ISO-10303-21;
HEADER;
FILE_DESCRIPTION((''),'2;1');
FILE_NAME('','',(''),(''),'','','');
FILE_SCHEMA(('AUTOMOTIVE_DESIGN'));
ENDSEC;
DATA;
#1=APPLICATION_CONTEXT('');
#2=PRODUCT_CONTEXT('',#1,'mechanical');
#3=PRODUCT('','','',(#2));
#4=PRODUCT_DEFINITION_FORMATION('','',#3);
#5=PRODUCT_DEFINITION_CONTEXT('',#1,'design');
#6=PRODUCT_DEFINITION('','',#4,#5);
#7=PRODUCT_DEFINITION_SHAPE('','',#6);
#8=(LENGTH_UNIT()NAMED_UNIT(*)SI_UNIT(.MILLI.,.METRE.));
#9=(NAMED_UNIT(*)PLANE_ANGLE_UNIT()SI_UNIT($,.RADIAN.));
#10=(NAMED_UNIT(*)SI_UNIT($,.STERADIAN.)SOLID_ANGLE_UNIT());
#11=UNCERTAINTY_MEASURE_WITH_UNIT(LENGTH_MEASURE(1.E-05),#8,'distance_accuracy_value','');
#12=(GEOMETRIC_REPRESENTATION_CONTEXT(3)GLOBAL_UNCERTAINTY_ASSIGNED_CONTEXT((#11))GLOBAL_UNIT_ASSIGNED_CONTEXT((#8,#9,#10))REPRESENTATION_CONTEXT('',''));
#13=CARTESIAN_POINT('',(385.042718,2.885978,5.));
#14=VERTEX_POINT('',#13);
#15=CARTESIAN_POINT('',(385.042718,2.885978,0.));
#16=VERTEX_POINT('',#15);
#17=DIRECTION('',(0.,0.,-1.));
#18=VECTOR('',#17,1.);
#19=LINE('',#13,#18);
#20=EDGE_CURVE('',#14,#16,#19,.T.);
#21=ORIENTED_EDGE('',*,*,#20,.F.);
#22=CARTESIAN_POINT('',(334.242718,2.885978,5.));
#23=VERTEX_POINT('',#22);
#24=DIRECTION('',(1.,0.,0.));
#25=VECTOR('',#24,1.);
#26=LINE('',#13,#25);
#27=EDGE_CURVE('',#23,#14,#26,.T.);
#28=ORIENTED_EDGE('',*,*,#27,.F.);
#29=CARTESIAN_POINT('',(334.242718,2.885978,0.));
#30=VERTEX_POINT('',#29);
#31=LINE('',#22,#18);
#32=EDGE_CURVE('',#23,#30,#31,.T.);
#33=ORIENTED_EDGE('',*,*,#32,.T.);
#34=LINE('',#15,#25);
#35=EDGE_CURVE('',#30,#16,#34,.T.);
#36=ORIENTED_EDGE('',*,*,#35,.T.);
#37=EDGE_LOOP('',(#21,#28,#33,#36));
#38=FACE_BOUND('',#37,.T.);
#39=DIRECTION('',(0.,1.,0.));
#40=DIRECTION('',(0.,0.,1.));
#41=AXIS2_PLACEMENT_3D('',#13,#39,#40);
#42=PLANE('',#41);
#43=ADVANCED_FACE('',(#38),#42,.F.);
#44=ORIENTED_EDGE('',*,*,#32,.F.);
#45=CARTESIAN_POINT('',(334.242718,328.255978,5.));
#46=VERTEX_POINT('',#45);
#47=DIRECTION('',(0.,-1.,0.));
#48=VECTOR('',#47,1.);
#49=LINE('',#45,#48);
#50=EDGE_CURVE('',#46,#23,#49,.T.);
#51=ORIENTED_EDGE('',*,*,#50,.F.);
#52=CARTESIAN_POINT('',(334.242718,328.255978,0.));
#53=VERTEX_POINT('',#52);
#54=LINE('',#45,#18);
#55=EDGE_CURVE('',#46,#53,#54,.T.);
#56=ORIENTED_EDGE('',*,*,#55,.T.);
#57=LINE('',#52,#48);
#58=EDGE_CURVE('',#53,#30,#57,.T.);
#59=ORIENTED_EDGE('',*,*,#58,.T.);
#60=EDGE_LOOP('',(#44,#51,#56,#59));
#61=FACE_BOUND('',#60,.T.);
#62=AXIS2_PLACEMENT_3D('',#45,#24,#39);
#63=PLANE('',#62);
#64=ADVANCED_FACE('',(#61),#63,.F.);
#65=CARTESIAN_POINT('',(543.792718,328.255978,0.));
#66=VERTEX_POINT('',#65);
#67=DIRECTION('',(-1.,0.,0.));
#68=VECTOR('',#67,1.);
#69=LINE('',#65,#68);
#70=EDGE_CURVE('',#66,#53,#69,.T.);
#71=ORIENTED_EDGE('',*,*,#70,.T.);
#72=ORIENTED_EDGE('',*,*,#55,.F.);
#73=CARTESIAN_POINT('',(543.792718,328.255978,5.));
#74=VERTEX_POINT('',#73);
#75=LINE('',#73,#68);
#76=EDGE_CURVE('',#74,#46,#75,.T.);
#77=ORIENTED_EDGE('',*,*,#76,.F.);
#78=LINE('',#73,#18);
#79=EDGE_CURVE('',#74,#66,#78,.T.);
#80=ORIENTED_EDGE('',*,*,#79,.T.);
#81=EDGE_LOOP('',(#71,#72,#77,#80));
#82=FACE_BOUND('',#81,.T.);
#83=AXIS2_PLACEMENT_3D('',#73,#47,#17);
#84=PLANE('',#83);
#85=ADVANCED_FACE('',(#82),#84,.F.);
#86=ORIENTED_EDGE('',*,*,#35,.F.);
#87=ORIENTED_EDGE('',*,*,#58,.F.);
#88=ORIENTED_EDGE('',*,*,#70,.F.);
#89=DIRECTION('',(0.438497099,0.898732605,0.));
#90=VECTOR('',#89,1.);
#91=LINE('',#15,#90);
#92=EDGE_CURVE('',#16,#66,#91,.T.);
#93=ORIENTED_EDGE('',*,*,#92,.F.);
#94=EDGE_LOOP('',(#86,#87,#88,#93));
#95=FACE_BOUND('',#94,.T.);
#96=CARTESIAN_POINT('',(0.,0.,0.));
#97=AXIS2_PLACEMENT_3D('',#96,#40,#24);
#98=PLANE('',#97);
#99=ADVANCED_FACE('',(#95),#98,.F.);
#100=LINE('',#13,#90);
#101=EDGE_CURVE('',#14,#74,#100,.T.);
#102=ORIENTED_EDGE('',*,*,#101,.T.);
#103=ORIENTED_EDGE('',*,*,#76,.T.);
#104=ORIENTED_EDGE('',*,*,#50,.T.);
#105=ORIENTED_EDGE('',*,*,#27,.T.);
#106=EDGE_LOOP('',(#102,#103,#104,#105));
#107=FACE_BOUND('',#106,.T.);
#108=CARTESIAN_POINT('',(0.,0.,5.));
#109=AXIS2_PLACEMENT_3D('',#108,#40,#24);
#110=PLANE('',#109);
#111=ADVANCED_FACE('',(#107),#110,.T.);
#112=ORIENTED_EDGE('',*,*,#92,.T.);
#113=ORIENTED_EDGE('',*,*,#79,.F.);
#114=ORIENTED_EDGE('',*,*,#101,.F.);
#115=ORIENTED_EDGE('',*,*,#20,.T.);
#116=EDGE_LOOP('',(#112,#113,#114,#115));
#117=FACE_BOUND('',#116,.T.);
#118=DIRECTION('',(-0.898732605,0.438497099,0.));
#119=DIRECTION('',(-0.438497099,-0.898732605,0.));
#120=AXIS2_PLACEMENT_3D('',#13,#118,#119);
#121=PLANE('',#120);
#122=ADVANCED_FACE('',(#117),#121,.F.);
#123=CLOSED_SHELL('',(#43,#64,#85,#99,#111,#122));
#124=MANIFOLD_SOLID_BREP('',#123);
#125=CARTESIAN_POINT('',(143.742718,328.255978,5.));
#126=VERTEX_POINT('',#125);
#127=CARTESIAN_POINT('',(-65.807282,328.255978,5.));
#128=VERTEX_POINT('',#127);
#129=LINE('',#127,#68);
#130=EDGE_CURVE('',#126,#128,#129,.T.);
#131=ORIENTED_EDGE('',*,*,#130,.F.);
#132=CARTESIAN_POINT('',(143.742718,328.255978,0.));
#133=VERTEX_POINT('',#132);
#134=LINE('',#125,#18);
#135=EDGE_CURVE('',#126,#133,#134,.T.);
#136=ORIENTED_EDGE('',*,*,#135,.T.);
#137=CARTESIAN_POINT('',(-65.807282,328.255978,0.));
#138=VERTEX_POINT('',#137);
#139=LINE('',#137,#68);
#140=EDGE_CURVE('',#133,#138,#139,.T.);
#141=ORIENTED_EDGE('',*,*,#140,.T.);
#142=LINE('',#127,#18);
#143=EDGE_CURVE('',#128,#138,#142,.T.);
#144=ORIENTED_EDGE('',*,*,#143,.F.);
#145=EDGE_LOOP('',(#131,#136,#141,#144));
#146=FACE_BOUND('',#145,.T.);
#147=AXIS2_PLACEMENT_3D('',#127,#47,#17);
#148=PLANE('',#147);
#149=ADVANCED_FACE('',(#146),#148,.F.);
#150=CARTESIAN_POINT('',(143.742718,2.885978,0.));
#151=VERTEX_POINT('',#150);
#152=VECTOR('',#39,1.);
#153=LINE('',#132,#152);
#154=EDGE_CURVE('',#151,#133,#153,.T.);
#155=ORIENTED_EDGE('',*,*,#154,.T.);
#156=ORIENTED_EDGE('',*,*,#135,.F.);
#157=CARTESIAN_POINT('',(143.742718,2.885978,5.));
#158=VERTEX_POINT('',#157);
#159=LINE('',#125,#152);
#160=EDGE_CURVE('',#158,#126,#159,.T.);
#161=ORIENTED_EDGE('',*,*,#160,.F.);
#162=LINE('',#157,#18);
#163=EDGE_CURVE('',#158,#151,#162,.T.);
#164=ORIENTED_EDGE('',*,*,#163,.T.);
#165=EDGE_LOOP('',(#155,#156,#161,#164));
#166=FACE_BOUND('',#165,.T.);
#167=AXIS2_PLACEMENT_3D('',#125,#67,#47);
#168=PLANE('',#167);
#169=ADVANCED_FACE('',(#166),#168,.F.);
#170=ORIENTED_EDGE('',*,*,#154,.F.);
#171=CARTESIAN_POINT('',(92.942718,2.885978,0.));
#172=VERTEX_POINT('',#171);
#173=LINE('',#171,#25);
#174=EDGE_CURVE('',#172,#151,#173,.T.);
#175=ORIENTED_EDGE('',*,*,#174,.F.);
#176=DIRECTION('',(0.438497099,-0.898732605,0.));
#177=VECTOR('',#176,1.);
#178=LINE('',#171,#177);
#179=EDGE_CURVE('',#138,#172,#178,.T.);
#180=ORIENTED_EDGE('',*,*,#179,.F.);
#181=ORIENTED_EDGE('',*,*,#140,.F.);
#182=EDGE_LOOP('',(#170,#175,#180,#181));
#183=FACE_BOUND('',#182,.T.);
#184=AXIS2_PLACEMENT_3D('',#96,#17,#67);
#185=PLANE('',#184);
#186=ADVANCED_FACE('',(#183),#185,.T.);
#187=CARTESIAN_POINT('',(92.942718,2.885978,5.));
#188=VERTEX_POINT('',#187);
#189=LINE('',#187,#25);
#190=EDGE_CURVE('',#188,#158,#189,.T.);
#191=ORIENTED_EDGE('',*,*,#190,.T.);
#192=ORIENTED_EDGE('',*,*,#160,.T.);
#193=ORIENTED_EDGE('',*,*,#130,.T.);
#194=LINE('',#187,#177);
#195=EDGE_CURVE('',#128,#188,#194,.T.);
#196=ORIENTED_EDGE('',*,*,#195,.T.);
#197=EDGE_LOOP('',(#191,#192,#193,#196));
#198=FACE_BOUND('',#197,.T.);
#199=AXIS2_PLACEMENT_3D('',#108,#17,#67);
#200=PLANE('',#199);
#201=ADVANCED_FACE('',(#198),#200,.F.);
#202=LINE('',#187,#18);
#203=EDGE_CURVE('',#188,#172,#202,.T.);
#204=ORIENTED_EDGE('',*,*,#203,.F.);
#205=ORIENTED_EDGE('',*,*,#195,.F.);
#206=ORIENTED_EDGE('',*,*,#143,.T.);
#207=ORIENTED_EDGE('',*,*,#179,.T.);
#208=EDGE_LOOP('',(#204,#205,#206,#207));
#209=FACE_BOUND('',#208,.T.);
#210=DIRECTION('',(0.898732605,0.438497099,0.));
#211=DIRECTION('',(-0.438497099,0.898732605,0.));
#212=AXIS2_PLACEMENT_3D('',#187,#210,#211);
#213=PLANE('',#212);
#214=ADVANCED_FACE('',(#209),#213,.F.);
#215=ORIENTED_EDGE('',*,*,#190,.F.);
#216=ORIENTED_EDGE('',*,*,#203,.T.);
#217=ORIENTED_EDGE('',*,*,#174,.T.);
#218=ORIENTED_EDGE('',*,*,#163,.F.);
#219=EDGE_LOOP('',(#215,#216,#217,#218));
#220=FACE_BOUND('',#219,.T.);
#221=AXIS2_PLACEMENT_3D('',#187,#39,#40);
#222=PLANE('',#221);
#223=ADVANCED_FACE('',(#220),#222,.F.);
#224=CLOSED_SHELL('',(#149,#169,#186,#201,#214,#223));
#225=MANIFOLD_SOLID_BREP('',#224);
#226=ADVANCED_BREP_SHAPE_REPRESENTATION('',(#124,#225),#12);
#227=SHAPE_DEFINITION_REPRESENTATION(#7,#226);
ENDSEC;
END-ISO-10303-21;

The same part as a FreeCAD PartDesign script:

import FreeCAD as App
import Part
import Sketcher
Q = App.Units.Quantity

doc = App.newDocument("Part")
body = doc.addObject("PartDesign::Body", "Body")

# Sketch on XY plane
sketch1 = body.newObject("Sketcher::SketchObject", "Sketch")
sketch1.AttachmentSupport = (doc.getObject("XY_Plane"), [""])
sketch1.MapMode = "FlatFace"
sketch1.addGeometry(Part.LineSegment(App.Vector(93, 3, 0), App.Vector(144, 3, 0)), False)
sketch1.addGeometry(Part.LineSegment(App.Vector(144, 3, 0), App.Vector(144, 328, 0)), False)
sketch1.addGeometry(Part.LineSegment(App.Vector(144, 328, 0), App.Vector(-66, 328, 0)), False)
sketch1.addGeometry(Part.LineSegment(App.Vector(-66, 328, 0), App.Vector(93, 3, 0)), False)
sketch1.addConstraint(Sketcher.Constraint("Coincident", 0, 2, 1, 1))
sketch1.addConstraint(Sketcher.Constraint("Coincident", 1, 2, 2, 1))
sketch1.addConstraint(Sketcher.Constraint("Coincident", 2, 2, 3, 1))
sketch1.addConstraint(Sketcher.Constraint("Coincident", 3, 2, 0, 1))
sketch1.addConstraint(Sketcher.Constraint("Horizontal", 0))
sketch1.addConstraint(Sketcher.Constraint("Vertical", 1))
sketch1.addConstraint(Sketcher.Constraint("Horizontal", 2))
sketch1.addConstraint(Sketcher.Constraint("DistanceX", 0, 1, 0, 2, Q("2 in")))
sketch1.addConstraint(Sketcher.Constraint("DistanceX", 2, 2, 2, 1, Q("8.25 in")))
sketch1.addConstraint(Sketcher.Constraint("DistanceY", 1, 1, 1, 2, 325.37))
sketch1.addConstraint(Sketcher.Constraint("DistanceX", -1, 1, 0, 2, 143.742718))
sketch1.addConstraint(Sketcher.Constraint("DistanceY", -1, 1, 0, 2, 2.885978))
pad1 = body.newObject("PartDesign::Pad", "Pad")
pad1.Profile = sketch1
pad1.Length = 5
body2 = doc.addObject("PartDesign::Body", "Body001")

# Sketch on XY plane
sketch2 = body2.newObject("Sketcher::SketchObject", "Sketch001")
sketch2.AttachmentSupport = (doc.getObject("XY_Plane001"), [""])
sketch2.MapMode = "FlatFace"
sketch2.addGeometry(Part.LineSegment(App.Vector(334, 328, 0), App.Vector(334, 3, 0)), False)
sketch2.addGeometry(Part.LineSegment(App.Vector(334, 3, 0), App.Vector(385, 3, 0)), False)
sketch2.addGeometry(Part.LineSegment(App.Vector(385, 3, 0), App.Vector(544, 328, 0)), False)
sketch2.addGeometry(Part.LineSegment(App.Vector(544, 328, 0), App.Vector(334, 328, 0)), False)
sketch2.addConstraint(Sketcher.Constraint("Coincident", 0, 2, 1, 1))
sketch2.addConstraint(Sketcher.Constraint("Coincident", 1, 2, 2, 1))
sketch2.addConstraint(Sketcher.Constraint("Coincident", 2, 2, 3, 1))
sketch2.addConstraint(Sketcher.Constraint("Coincident", 3, 2, 0, 1))
sketch2.addConstraint(Sketcher.Constraint("Vertical", 0))
sketch2.addConstraint(Sketcher.Constraint("Horizontal", 1))
sketch2.addConstraint(Sketcher.Constraint("Horizontal", 3))
sketch2.addConstraint(Sketcher.Constraint("DistanceX", 1, 1, 1, 2, Q("2 in")))
sketch2.addConstraint(Sketcher.Constraint("DistanceX", 3, 2, 3, 1, Q("8.25 in")))
sketch2.addConstraint(Sketcher.Constraint("DistanceY", 0, 2, 0, 1, 325.37))
sketch2.addConstraint(Sketcher.Constraint("DistanceX", -1, 1, 0, 2, 334.242718))
sketch2.addConstraint(Sketcher.Constraint("DistanceY", -1, 1, 0, 2, 2.885978))
pad2 = body2.newObject("PartDesign::Pad", "Pad001")
pad2.Profile = sketch2
pad2.Length = 5

doc.recompute()
